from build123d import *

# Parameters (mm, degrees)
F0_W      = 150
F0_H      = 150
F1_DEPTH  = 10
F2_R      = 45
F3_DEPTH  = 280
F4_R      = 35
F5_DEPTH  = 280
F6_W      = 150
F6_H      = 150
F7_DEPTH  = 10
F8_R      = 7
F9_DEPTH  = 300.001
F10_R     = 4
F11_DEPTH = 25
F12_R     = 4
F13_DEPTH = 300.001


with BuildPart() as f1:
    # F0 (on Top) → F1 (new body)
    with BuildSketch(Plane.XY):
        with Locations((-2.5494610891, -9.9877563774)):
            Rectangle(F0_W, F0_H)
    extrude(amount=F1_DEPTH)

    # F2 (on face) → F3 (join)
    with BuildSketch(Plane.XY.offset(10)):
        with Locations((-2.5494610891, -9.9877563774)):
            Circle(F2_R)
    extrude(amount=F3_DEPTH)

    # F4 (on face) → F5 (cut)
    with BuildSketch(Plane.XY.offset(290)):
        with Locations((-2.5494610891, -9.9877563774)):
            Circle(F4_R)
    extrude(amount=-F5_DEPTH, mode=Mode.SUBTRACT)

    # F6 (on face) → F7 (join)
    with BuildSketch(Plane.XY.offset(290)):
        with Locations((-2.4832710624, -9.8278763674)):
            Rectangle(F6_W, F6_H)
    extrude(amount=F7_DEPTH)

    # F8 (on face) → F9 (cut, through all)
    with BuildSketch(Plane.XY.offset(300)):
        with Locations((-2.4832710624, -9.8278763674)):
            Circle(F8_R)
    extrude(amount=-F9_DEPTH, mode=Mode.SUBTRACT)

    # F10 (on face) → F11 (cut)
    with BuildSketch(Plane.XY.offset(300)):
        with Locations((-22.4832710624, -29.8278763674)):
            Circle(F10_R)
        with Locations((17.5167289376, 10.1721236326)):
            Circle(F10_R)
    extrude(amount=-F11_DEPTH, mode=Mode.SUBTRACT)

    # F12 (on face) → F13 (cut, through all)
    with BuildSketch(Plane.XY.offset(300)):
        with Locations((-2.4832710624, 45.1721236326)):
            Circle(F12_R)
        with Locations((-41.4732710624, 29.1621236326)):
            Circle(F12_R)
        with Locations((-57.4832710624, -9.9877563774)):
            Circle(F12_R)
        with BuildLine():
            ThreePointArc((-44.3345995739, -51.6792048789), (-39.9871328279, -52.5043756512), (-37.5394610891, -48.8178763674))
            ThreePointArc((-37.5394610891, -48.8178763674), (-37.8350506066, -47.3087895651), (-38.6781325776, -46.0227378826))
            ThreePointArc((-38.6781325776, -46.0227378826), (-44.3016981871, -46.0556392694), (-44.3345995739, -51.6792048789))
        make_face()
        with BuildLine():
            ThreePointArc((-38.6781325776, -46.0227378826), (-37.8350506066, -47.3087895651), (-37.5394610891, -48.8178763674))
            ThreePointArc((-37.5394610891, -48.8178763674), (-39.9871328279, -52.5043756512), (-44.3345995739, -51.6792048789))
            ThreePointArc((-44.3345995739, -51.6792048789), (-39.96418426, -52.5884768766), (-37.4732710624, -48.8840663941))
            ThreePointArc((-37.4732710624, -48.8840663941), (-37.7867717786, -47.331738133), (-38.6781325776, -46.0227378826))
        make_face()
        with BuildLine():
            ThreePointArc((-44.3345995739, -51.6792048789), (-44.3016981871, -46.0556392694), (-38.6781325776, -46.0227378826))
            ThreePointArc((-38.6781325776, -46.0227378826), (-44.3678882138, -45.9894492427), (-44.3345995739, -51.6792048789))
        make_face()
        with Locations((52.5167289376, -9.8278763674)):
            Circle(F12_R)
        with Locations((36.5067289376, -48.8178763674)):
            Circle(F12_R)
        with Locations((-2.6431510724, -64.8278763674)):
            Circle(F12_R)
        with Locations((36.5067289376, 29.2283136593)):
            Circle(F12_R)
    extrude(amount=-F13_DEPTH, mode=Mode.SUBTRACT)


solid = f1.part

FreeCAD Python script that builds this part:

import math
import FreeCAD as App
import Part
import Sketcher


def add_polygon(sketch, points):
    """Adds a closed chain of lines whose ends are joined by coincident constraints."""
    first, n = sketch.GeometryCount, len(points)
    for a, b in zip(points, points[1:] + points[:1]):
        sketch.addGeometry(Part.LineSegment(App.Vector(*a, 0), App.Vector(*b, 0)), False)
    for i in range(n):
        sketch.addConstraint(Sketcher.Constraint("Coincident", first + i, 2, first + (i + 1) % n, 1))

doc = App.newDocument("Part")
params = doc.addObject("Spreadsheet::Sheet", "Params")
for row, (alias, value) in enumerate([
    ("sketch1_width", "150 mm"),
    ("pad1_length", "10 mm"),
    ("sketch2_diameter", "90 mm"),
    ("pad2_length", "280 mm"),
    ("sketch3_diameter", "70 mm"),
    ("pocket1_length", "280 mm"),
    ("sketch4_width", "150 mm"),
    ("pad3_length", "10 mm"),
    ("sketch5_diameter", "14 mm"),
    ("sketch6_diameter", "8 mm"),
    ("pocket3_length", "25 mm"),
    ("sketch7_diameter", "8 mm"),
], start=1):
    params.set(f"A{row}", alias)
    params.set(f"B{row}", "=" + value)
    params.setAlias(f"B{row}", alias)

body = doc.addObject("PartDesign::Body", "Body")

# Sketch on XY plane
sketch1 = body.newObject("Sketcher::SketchObject", "Sketch")
sketch1.AttachmentSupport = (doc.getObject("XY_Plane"), [""])
sketch1.MapMode = "FlatFace"
add_polygon(sketch1, [(-78, 65), (-78, -85), (72, -85), (72, 65)])  # lines 0-3
sketch1.addConstraint([
    Sketcher.Constraint("Vertical", 0),
    Sketcher.Constraint("Horizontal", 1),
    Sketcher.Constraint("Vertical", 2),
    Sketcher.Constraint("Horizontal", 3),
    Sketcher.Constraint("Equal", 3, 0),
    Sketcher.Constraint("DistanceX", 1, 1, 1, 2, 150.0),
    Sketcher.Constraint("DistanceX", 0, 2, -1, 1, 77.549461),
    Sketcher.Constraint("DistanceY", 0, 2, -1, 1, 84.987756),
])
sketch1.setExpression("Constraints[9]", "Params.sketch1_width")
pad1 = body.newObject("PartDesign::Pad", "Pad")
pad1.Profile = sketch1
pad1.setExpression("Length", "Params.pad1_length")

# Sketch on XY plane
sketch2 = body.newObject("Sketcher::SketchObject", "Sketch001")
sketch2.AttachmentSupport = (doc.getObject("XY_Plane"), [""])
sketch2.MapMode = "FlatFace"
sketch2.AttachmentOffset = App.Placement(App.Vector(0, 0, 10), App.Rotation())
sketch2.addGeometry(Part.Circle(App.Vector(-3, -10, 0), App.Vector(0, 0, 1), 45), False)
sketch2.addConstraint([
    Sketcher.Constraint("Diameter", 0, 90.0),
    Sketcher.Constraint("DistanceX", 0, 3, -1, 1, 2.549461),
    Sketcher.Constraint("DistanceY", 0, 3, -1, 1, 9.987756),
])
sketch2.setExpression("Constraints[0]", "Params.sketch2_diameter")
pad2 = body.newObject("PartDesign::Pad", "Pad001")
pad2.Profile = sketch2
pad2.setExpression("Length", "Params.pad2_length")

# Sketch on XY plane
sketch3 = body.newObject("Sketcher::SketchObject", "Sketch002")
sketch3.AttachmentSupport = (doc.getObject("XY_Plane"), [""])
sketch3.MapMode = "FlatFace"
sketch3.AttachmentOffset = App.Placement(App.Vector(0, 0, 290), App.Rotation())
sketch3.addGeometry(Part.Circle(App.Vector(-3, -10, 0), App.Vector(0, 0, 1), 35), False)
sketch3.addConstraint([
    Sketcher.Constraint("Diameter", 0, 70.0),
    Sketcher.Constraint("DistanceX", 0, 3, -1, 1, 2.549461),
    Sketcher.Constraint("DistanceY", 0, 3, -1, 1, 9.987756),
])
sketch3.setExpression("Constraints[0]", "Params.sketch3_diameter")
pocket1 = body.newObject("PartDesign::Pocket", "Pocket")
pocket1.Profile = sketch3
pocket1.setExpression("Length", "Params.pocket1_length")

# Sketch on XY plane
sketch4 = body.newObject("Sketcher::SketchObject", "Sketch003")
sketch4.AttachmentSupport = (doc.getObject("XY_Plane"), [""])
sketch4.MapMode = "FlatFace"
sketch4.AttachmentOffset = App.Placement(App.Vector(0, 0, 290), App.Rotation())
add_polygon(sketch4, [(-77, 65), (-77, -85), (73, -85), (73, 65)])  # lines 0-3
sketch4.addConstraint([
    Sketcher.Constraint("Vertical", 0),
    Sketcher.Constraint("Horizontal", 1),
    Sketcher.Constraint("Vertical", 2),
    Sketcher.Constraint("Horizontal", 3),
    Sketcher.Constraint("Equal", 3, 0),
    Sketcher.Constraint("DistanceX", 1, 1, 1, 2, 150.0),
    Sketcher.Constraint("DistanceX", 0, 2, -1, 1, 77.483271),
    Sketcher.Constraint("DistanceY", 0, 2, -1, 1, 84.827876),
])
sketch4.setExpression("Constraints[9]", "Params.sketch4_width")
pad3 = body.newObject("PartDesign::Pad", "Pad002")
pad3.Profile = sketch4
pad3.setExpression("Length", "Params.pad3_length")

# Sketch on XY plane
sketch5 = body.newObject("Sketcher::SketchObject", "Sketch004")
sketch5.AttachmentSupport = (doc.getObject("XY_Plane"), [""])
sketch5.MapMode = "FlatFace"
sketch5.AttachmentOffset = App.Placement(App.Vector(0, 0, 300), App.Rotation())
sketch5.addGeometry(Part.Circle(App.Vector(-2, -10, 0), App.Vector(0, 0, 1), 7), False)
sketch5.addConstraint([
    Sketcher.Constraint("Diameter", 0, 14.0),
    Sketcher.Constraint("DistanceX", 0, 3, -1, 1, 2.483271),
    Sketcher.Constraint("DistanceY", 0, 3, -1, 1, 9.827876),
])
sketch5.setExpression("Constraints[0]", "Params.sketch5_diameter")
pocket2 = body.newObject("PartDesign::Pocket", "Pocket001")
pocket2.Profile = sketch5
pocket2.Type = "ThroughAll"

# Sketch on XY plane
sketch6 = body.newObject("Sketcher::SketchObject", "Sketch005")
sketch6.AttachmentSupport = (doc.getObject("XY_Plane"), [""])
sketch6.MapMode = "FlatFace"
sketch6.AttachmentOffset = App.Placement(App.Vector(0, 0, 300), App.Rotation())
sketch6.addGeometry([
    Part.Circle(App.Vector(-22.5, -29.8, 0), App.Vector(0, 0, 1), 4),
    Part.Circle(App.Vector(17.5, 10.2, 0), App.Vector(0, 0, 1), 4),
], False)
sketch6.addConstraint([
    Sketcher.Constraint("Equal", 0, 1),
    Sketcher.Constraint("Diameter", 0, 8.0),
    Sketcher.Constraint("DistanceX", 0, 3, 1, 3, 40.0),
    Sketcher.Constraint("DistanceY", 0, 3, 1, 3, 40.0),
    Sketcher.Constraint("DistanceX", 0, 3, -1, 1, 22.483271),
    Sketcher.Constraint("DistanceY", 0, 3, -1, 1, 29.827876),
])
sketch6.setExpression("Constraints[1]", "Params.sketch6_diameter")
pocket3 = body.newObject("PartDesign::Pocket", "Pocket002")
pocket3.Profile = sketch6
pocket3.setExpression("Length", "Params.pocket3_length")

# Sketch on XY plane
sketch7 = body.newObject("Sketcher::SketchObject", "Sketch006")
sketch7.AttachmentSupport = (doc.getObject("XY_Plane"), [""])
sketch7.MapMode = "FlatFace"
sketch7.AttachmentOffset = App.Placement(App.Vector(0, 0, 300), App.Rotation())
sketch7.addGeometry([
    Part.Circle(App.Vector(-2.5, 45.2, 0), App.Vector(0, 0, 1), 4),  # 0
    Part.Circle(App.Vector(-41.5, 29.2, 0), App.Vector(0, 0, 1), 4),  # 1
    Part.Circle(App.Vector(-57.5, -10, 0), App.Vector(0, 0, 1), 4),  # 2
    Part.ArcOfCircle(Part.Circle(App.Vector(-41.5, -48.9, 0), App.Vector(0, 0, 1), 4), math.radians(-136), math.radians(0)),  # 3
    Part.ArcOfCircle(Part.Circle(App.Vector(-41.5, -48.9, 0), App.Vector(0, 0, 1), 4), math.radians(0), math.radians(46)),  # 4
    Part.ArcOfCircle(Part.Circle(App.Vector(-41.5, -48.8, 0), App.Vector(0, 0, 1), 4), math.radians(44), math.radians(226)),  # 5
    Part.Circle(App.Vector(52.5, -9.8, 0), App.Vector(0, 0, 1), 4),  # 6
    Part.Circle(App.Vector(36.5, -48.8, 0), App.Vector(0, 0, 1), 4),  # 7
    Part.Circle(App.Vector(-2.6, -64.8, 0), App.Vector(0, 0, 1), 4),  # 8
    Part.Circle(App.Vector(36.5, 29.2, 0), App.Vector(0, 0, 1), 4),  # 9
], False)
sketch7.addConstraint([
    Sketcher.Constraint("Tangent", 3, 2, 4, 1),
    Sketcher.Constraint("Coincident", 4, 2, 5, 1),
    Sketcher.Constraint("Coincident", 5, 2, 3, 1),
    Sketcher.Constraint("Equal", 0, 1),
    Sketcher.Constraint("Equal", 1, 2),
    Sketcher.Constraint("Equal", 2, 3),
    Sketcher.Constraint("Equal", 3, 4),
    Sketcher.Constraint("Equal", 4, 5),
    Sketcher.Constraint("Equal", 5, 6),
    Sketcher.Constraint("Equal", 6, 7),
    Sketcher.Constraint("Equal", 7, 8),
    Sketcher.Constraint("Equal", 8, 9),
    Sketcher.Constraint("Horizontal", 5, 3, 7, 3),
    Sketcher.Constraint("Horizontal", 4, 3, 3, 2),
    Sketcher.Constraint("Vertical", 1, 3, 3, 3),
    Sketcher.Constraint("Vertical", 7, 3, 9, 3),
    Sketcher.Constraint("Diameter", 0, 8.0),
    Sketcher.Constraint("DistanceX", 2, 3, 0, 3, 55.0),
    Sketcher.Constraint("DistanceX", 0, 3, 6, 3, 55.0),
    Sketcher.Constraint("DistanceY", 6, 3, 0, 3, 55.0),
    Sketcher.Constraint("DistanceX", 1, 3, 0, 3, 38.99),
    Sketcher.Constraint("DistanceY", 1, 3, 0, 3, 16.01),
    Sketcher.Constraint("DistanceY", 5, 3, 1, 3, 77.98),
    Sketcher.Constraint("DistanceX", 7, 3, 6, 3, 16.01),
    Sketcher.Constraint("DistanceY", 8, 3, 5, 3, 16.01),
    Sketcher.Constraint("DistanceX", 5, 2, -1, 1, 44.3346),
    Sketcher.Constraint("DistanceX", 0, 3, -1, 1, 2.483271),
    Sketcher.Constraint("DistanceX", 5, 3, -1, 1, 41.539461),
    Sketcher.Constraint("DistanceX", 8, 3, -1, 1, 2.643151),
    Sketcher.Constraint("DistanceY", 2, 3, 1, 3, 39.14988),
    Sketcher.Constraint("DistanceY", 9, 3, 0, 3, 15.94381),
    Sketcher.Constraint("DistanceY", -1, 1, 0, 3, 45.172124),
])
sketch7.setExpression("Constraints[16]", "Params.sketch7_diameter")
pocket4 = body.newObject("PartDesign::Pocket", "Pocket003")
pocket4.Profile = sketch7
pocket4.Type = "ThroughAll"

doc.recompute()
